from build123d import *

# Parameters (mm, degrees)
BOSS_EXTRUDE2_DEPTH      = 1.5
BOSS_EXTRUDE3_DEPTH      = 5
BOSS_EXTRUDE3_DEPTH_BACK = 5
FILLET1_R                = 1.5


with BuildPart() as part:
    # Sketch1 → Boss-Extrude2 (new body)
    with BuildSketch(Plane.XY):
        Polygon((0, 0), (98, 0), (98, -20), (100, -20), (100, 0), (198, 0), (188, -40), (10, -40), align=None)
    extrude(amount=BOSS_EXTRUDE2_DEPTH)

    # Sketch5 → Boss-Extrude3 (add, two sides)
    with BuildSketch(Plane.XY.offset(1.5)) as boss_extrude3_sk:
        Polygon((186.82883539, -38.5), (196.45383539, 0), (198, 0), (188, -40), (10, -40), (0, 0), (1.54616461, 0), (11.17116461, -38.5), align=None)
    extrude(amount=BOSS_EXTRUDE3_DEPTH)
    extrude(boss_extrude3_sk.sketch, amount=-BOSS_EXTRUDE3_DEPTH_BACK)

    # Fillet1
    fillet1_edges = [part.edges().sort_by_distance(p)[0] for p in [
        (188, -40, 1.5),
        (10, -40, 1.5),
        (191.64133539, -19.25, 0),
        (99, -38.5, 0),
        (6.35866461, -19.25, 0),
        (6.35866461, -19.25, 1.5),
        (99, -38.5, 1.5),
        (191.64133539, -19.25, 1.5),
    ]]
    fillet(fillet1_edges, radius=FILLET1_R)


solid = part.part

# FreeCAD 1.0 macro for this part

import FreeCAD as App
import Part
import Sketcher
Q = App.Units.Quantity


def edges_at(feature, points):
    """Names of the edges that pass closest to the given points."""
    edges = feature.Shape.Edges
    near = lambda p: min(range(len(edges)), key=lambda i: edges[i].distToShape(Part.Vertex(*p))[0])
    return sorted({f"Edge{near(p) + 1}" for p in points})


def add_polygon(sketch, points):
    """Adds a closed chain of lines whose ends are joined by coincident constraints."""
    first, n = sketch.GeometryCount, len(points)
    for a, b in zip(points, points[1:] + points[:1]):
        sketch.addGeometry(Part.LineSegment(App.Vector(*a, 0), App.Vector(*b, 0)), False)
    for i in range(n):
        sketch.addConstraint(Sketcher.Constraint("Coincident", first + i, 2, first + (i + 1) % n, 1))

doc = App.newDocument("Part")
params = doc.addObject("Spreadsheet::Sheet", "Params")
for row, (alias, value) in enumerate([
    ("sketch1_width", "98 mm"),
    ("sketch1_width2", "178 mm"),
    ("sketch1_width3", "2 mm"),
    ("sketch1_height", "20 mm"),
    ("pad1_length", "1.5 mm"),
    ("sketch2_width", "178 mm"),
    ("pad2_length", "5 mm"),
    ("pad2_length2", "5 mm"),
    ("fillet_radius", "1.5 mm"),
], start=1):
    params.set(f"A{row}", alias)
    params.set(f"B{row}", "=" + value)
    params.setAlias(f"B{row}", alias)

body = doc.addObject("PartDesign::Body", "Body")

# Sketch on XY plane
sketch1 = body.newObject("Sketcher::SketchObject", "Sketch")
sketch1.AttachmentSupport = (doc.getObject("XY_Plane"), [""])
sketch1.MapMode = "FlatFace"
add_polygon(sketch1, [(98, 0), (0, 0), (10, -40), (188, -40), (198, 0), (100, 0), (100, -20), (98, -20)])  # lines 0-7
sketch1.addConstraint(Sketcher.Constraint("Horizontal", 0))
sketch1.addConstraint(Sketcher.Constraint("Horizontal", 2))
sketch1.addConstraint(Sketcher.Constraint("Horizontal", 4))
sketch1.addConstraint(Sketcher.Constraint("Vertical", 5))
sketch1.addConstraint(Sketcher.Constraint("Horizontal", 6))
sketch1.addConstraint(Sketcher.Constraint("Vertical", 7))
sketch1.addConstraint(Sketcher.Constraint("Coincident", 0, 2, -1, 1))
sketch1.addConstraint(Sketcher.Constraint("PointOnObject", 3, 2, -1))
sketch1.addConstraint(Sketcher.Constraint("Equal", 0, 4))
sketch1.addConstraint(Sketcher.Constraint("Equal", 1, 3))
sketch1.addConstraint(Sketcher.Constraint("DistanceX", 0, 2, 0, 1, Q("98 mm")))
sketch1.addConstraint(Sketcher.Constraint("DistanceX", 2, 1, 2, 2, Q("178 mm")))
sketch1.addConstraint(Sketcher.Constraint("DistanceX", 6, 2, 6, 1, Q("2 mm")))
sketch1.addConstraint(Sketcher.Constraint("DistanceY", 5, 2, 5, 1, Q("20 mm")))
sketch1.addConstraint(Sketcher.Constraint("DistanceY", 1, 2, -1, 1, Q("40 mm")))
sketch1.setExpression("Constraints[18]", "Params.sketch1_width")
sketch1.setExpression("Constraints[19]", "Params.sketch1_width2")
sketch1.setExpression("Constraints[20]", "Params.sketch1_width3")
sketch1.setExpression("Constraints[21]", "Params.sketch1_height")
pad1 = body.newObject("PartDesign::Pad", "Pad")
pad1.Profile = sketch1
pad1.setExpression("Length", "Params.pad1_length")

# Sketch on XY plane
sketch2 = body.newObject("Sketcher::SketchObject", "Sketch001")
sketch2.AttachmentSupport = (doc.getObject("XY_Plane"), [""])
sketch2.MapMode = "FlatFace"
sketch2.AttachmentOffset = App.Placement(App.Vector(0, 0, 1.5), App.Rotation())
add_polygon(sketch2, [(196.5, 0), (186.8, -38.5), (11.2, -38.5), (1.5, 0), (0, 0), (10, -40), (188, -40), (198, 0)])  # lines 0-7
sketch2.addConstraint(Sketcher.Constraint("Horizontal", 1))
sketch2.addConstraint(Sketcher.Constraint("Horizontal", 3))
sketch2.addConstraint(Sketcher.Constraint("Horizontal", 5))
sketch2.addConstraint(Sketcher.Constraint("Horizontal", 7))
sketch2.addConstraint(Sketcher.Constraint("Coincident", 3, 2, -1, 1))
sketch2.addConstraint(Sketcher.Constraint("PointOnObject", 6, 2, -1))
sketch2.addConstraint(Sketcher.Constraint("Parallel", 2, 4))
sketch2.addConstraint(Sketcher.Constraint("Parallel", 0, 6))
sketch2.addConstraint(Sketcher.Constraint("Equal", 3, 7))
sketch2.addConstraint(Sketcher.Constraint("Equal", 0, 2))
sketch2.addConstraint(Sketcher.Constraint("DistanceX", 5, 1, 5, 2, Q("178 mm")))
sketch2.addConstraint(Sketcher.Constraint("DistanceX", -1, 1, 4, 2, Q("10 mm")))
sketch2.addConstraint(Sketcher.Constraint("DistanceY", 4, 2, -1, 1, Q("40 mm")))
sketch2.addConstraint(Sketcher.Constraint("DistanceY", 0, 2, -1, 1, Q("38.5 mm")))
sketch2.addConstraint(Sketcher.Constraint("DistanceX", 1, 2, 1, 1, Q("175.657671 mm")))
sketch2.setExpression("Constraints[18]", "Params.sketch2_width")
pad2 = body.newObject("PartDesign::Pad", "Pad001")
pad2.Profile = sketch2
pad2.Type = "TwoLengths"
pad2.setExpression("Length", "Params.pad2_length")
pad2.setExpression("Length2", "Params.pad2_length2")
doc.recompute()

fillet = body.newObject("PartDesign::Fillet", "Fillet")
fillet.Base = (pad2, edges_at(pad2, [
    (188, -40, 1.5),
    (10, -40, 1.5),
    (191.641, -19.25, 0),
    (99, -38.5, 0),
    (6.359, -19.25, 0),
    (6.359, -19.25, 1.5),
    (99, -38.5, 1.5),
    (191.641, -19.25, 1.5),
]))
fillet.setExpression("Radius", "Params.fillet_radius")

doc.recompute()
